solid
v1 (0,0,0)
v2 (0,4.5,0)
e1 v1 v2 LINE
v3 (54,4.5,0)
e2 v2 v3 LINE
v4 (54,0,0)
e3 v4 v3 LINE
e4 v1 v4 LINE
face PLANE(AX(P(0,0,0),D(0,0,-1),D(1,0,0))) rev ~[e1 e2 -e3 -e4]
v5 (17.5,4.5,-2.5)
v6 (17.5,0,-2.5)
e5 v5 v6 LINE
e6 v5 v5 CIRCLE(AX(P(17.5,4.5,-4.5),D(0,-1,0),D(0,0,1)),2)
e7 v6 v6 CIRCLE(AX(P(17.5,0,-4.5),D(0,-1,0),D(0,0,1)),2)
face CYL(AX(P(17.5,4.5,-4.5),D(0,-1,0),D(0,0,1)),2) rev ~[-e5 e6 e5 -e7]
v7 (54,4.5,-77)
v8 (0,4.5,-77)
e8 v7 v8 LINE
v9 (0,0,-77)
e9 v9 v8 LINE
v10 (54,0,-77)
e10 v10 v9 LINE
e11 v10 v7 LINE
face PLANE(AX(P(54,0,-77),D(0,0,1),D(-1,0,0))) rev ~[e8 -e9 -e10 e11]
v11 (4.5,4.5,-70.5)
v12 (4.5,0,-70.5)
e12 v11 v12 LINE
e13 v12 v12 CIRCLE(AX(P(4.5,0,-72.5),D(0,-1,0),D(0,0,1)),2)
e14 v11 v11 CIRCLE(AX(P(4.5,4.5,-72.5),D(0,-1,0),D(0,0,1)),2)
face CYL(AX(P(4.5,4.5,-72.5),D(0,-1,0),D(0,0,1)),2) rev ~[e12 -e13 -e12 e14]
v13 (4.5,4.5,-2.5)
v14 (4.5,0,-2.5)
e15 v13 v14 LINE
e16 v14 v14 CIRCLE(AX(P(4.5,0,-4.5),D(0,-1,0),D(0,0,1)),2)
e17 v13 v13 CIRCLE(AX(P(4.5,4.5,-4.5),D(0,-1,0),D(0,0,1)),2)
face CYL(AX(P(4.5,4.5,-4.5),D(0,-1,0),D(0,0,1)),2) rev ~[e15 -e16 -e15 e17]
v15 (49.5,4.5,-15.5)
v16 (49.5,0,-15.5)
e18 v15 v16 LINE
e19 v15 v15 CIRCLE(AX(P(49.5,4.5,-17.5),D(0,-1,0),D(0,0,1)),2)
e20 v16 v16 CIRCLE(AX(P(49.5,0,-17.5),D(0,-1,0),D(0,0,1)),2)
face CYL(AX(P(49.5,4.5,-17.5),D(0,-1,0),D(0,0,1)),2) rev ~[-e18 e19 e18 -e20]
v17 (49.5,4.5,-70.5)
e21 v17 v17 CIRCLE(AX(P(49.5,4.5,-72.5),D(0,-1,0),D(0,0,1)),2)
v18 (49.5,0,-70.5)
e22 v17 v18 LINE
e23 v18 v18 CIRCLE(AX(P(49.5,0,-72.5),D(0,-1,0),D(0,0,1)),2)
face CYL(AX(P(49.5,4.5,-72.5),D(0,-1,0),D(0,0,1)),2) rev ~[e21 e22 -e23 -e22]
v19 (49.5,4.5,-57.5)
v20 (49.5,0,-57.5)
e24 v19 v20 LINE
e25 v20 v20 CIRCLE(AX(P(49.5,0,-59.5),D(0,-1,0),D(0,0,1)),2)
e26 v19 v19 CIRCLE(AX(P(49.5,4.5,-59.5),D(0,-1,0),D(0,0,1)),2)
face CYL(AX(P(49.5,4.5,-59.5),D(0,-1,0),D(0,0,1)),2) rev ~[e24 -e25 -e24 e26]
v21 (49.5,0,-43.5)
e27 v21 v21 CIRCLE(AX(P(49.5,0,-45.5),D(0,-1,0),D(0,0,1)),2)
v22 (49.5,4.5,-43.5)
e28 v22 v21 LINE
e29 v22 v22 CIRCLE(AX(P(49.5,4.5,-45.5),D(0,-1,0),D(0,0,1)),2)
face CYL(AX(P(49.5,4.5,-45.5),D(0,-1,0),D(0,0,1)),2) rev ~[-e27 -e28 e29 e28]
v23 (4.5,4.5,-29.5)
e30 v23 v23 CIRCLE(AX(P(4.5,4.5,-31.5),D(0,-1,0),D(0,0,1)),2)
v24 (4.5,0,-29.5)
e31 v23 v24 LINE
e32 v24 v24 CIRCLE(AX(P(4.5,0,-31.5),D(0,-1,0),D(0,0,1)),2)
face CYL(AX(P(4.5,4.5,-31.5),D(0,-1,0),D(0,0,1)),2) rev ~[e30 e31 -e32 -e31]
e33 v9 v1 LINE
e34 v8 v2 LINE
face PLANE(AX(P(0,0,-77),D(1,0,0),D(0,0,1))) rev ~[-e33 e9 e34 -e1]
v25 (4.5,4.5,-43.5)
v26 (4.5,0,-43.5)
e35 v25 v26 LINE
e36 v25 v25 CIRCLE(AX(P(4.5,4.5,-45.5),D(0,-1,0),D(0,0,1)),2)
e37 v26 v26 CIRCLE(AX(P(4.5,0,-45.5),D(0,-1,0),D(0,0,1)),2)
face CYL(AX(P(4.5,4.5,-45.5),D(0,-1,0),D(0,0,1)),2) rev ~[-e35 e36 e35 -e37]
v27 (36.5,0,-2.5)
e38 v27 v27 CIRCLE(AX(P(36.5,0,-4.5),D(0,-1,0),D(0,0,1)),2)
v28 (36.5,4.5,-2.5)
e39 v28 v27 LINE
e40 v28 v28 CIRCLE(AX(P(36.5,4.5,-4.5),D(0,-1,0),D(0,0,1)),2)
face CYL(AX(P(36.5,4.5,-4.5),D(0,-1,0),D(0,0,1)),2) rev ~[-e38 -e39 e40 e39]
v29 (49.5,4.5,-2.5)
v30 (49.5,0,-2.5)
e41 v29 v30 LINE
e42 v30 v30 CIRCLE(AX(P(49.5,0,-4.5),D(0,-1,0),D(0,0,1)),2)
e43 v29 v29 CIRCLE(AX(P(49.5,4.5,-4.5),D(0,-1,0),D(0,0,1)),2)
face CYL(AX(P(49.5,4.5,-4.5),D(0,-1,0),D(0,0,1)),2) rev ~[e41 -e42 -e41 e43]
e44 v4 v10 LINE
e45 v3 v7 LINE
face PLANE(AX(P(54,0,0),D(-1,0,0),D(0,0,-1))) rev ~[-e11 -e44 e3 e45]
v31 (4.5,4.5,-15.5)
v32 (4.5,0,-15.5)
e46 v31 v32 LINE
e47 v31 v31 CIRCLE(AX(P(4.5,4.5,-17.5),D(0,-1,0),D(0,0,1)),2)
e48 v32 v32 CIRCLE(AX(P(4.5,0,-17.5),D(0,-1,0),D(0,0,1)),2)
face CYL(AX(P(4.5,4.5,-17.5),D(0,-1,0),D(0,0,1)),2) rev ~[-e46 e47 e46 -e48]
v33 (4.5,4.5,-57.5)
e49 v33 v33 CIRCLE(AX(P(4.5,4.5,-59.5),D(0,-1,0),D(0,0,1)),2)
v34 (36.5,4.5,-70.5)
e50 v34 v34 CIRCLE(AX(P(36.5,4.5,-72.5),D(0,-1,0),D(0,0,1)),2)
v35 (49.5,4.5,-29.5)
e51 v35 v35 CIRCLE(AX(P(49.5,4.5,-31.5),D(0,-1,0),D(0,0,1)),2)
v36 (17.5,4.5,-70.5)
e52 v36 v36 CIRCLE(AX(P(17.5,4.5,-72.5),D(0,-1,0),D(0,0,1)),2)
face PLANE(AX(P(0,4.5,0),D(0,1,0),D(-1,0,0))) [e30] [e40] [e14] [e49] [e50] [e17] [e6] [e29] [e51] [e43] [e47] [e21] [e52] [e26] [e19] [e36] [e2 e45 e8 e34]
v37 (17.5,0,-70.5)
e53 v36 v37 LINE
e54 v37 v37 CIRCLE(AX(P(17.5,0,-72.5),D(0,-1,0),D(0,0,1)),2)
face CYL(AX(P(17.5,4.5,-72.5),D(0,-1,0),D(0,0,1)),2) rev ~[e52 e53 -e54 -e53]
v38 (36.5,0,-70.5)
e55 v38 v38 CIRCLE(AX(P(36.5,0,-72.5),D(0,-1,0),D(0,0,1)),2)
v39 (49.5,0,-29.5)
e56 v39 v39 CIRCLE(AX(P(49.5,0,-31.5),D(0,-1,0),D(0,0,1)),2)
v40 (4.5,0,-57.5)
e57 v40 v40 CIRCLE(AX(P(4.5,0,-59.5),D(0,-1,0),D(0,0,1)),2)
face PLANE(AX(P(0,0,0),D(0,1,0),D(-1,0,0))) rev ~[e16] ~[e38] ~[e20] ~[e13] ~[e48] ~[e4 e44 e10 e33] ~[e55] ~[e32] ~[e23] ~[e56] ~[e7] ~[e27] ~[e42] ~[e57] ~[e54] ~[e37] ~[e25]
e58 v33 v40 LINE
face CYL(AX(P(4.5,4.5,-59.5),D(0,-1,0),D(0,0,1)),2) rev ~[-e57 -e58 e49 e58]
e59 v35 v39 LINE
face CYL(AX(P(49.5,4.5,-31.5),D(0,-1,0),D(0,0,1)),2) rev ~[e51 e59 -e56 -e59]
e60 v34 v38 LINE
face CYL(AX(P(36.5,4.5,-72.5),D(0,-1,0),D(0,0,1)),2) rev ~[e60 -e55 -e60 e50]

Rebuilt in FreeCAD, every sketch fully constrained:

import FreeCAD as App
import Part
import Sketcher

V = App.Vector


def add_polygon(sketch, points):
    """Adds a closed chain of lines whose ends are joined by coincident constraints."""
    first, n = sketch.GeometryCount, len(points)
    for a, b in zip(points, points[1:] + points[:1]):
        sketch.addGeometry(Part.LineSegment(App.Vector(*a, 0), App.Vector(*b, 0)), False)
    for i in range(n):
        sketch.addConstraint(Sketcher.Constraint("Coincident", first + i, 2, first + (i + 1) % n, 1))

doc = App.newDocument("Part")
body = doc.addObject("PartDesign::Body", "Body")

sketch1 = body.newObject("Sketcher::SketchObject", "Sketch")
sketch1.AttachmentSupport = (doc.getObject("XZ_Plane"), [""])
sketch1.MapMode = "FlatFace"
add_polygon(sketch1, [(0, -77), (0, 0), (54, 0), (54, -77)])
sketch1.addConstraint([
    Sketcher.Constraint("Vertical", 0),
    Sketcher.Constraint("Horizontal", 1),
    Sketcher.Constraint("Vertical", 2),
    Sketcher.Constraint("Horizontal", 3),
    Sketcher.Constraint("Coincident", 0, 2, -1, 1),
    Sketcher.Constraint("DistanceX", 1, 1, 1, 2, 54.0),
    Sketcher.Constraint("DistanceY", 0, 1, 0, 2, 77.0),
])
pad1 = body.newObject("PartDesign::Pad", "Pad")
pad1.Profile = sketch1
pad1.Length = 4.5
pad1.Reversed = True

sketch2 = body.newObject("Sketcher::SketchObject", "Sketch001")
sketch2.AttachmentSupport = (doc.getObject("XZ_Plane"), [""])
sketch2.MapMode = "FlatFace"
sketch2.AttachmentOffset = App.Placement(V(0, 0, -4.5), App.Rotation())
sketch2.addGeometry([
    Part.Circle(V(4.5, -4.5, 0), V(0, 0, 1), 2),
    Part.Circle(V(17.5, -4.5, 0), V(0, 0, 1), 2),
    Part.Circle(V(4.5, -17.5, 0), V(0, 0, 1), 2),
    Part.Circle(V(36.5, -4.5, 0), V(0, 0, 1), 2),
    Part.Circle(V(4.5, -31.5, 0), V(0, 0, 1), 2),
    Part.Circle(V(49.5, -4.5, 0), V(0, 0, 1), 2),
    Part.Circle(V(49.5, -17.5, 0), V(0, 0, 1), 2),
    Part.Circle(V(4.5, -45.5, 0), V(0, 0, 1), 2),
    Part.Circle(V(4.5, -59.5, 0), V(0, 0, 1), 2),
    Part.Circle(V(4.5, -72.5, 0), V(0, 0, 1), 2),
    Part.Circle(V(17.5, -72.5, 0), V(0, 0, 1), 2),
    Part.Circle(V(36.5, -72.5, 0), V(0, 0, 1), 2),
    Part.Circle(V(49.5, -72.5, 0), V(0, 0, 1), 2),
    Part.Circle(V(49.5, -59.5, 0), V(0, 0, 1), 2),
    Part.Circle(V(49.5, -45.5, 0), V(0, 0, 1), 2),
    Part.Circle(V(49.5, -31.5, 0), V(0, 0, 1), 2),
], False)
sketch2.addConstraint([
    Sketcher.Constraint("Equal", 0, 1),
    Sketcher.Constraint("Equal", 1, 2),
    Sketcher.Constraint("Equal", 2, 3),
    Sketcher.Constraint("Equal", 3, 4),
    Sketcher.Constraint("Equal", 4, 5),
    Sketcher.Constraint("Equal", 5, 6),
    Sketcher.Constraint("Equal", 6, 7),
    Sketcher.Constraint("Equal", 7, 8),
    Sketcher.Constraint("Equal", 8, 9),
    Sketcher.Constraint("Equal", 9, 10),
    Sketcher.Constraint("Equal", 10, 11),
    Sketcher.Constraint("Equal", 11, 12),
    Sketcher.Constraint("Equal", 12, 13),
    Sketcher.Constraint("Equal", 13, 14),
    Sketcher.Constraint("Equal", 14, 15),
    Sketcher.Constraint("Horizontal", 0, 3, 1, 3),
    Sketcher.Constraint("Horizontal", 1, 3, 3, 3),
    Sketcher.Constraint("Horizontal", 3, 3, 5, 3),
    Sketcher.Constraint("Horizontal", 2, 3, 6, 3),
    Sketcher.Constraint("Horizontal", 9, 3, 10, 3),
    Sketcher.Constraint("Horizontal", 10, 3, 11, 3),
    Sketcher.Constraint("Horizontal", 11, 3, 12, 3),
    Sketcher.Constraint("Horizontal", 8, 3, 13, 3),
    Sketcher.Constraint("Horizontal", 7, 3, 14, 3),
    Sketcher.Constraint("Horizontal", 4, 3, 15, 3),
    Sketcher.Constraint("Vertical", 0, 3, 2, 3),
    Sketcher.Constraint("Vertical", 2, 3, 4, 3),
    Sketcher.Constraint("Vertical", 5, 3, 6, 3),
    Sketcher.Constraint("Vertical", 4, 3, 7, 3),
    Sketcher.Constraint("Vertical", 7, 3, 8, 3),
    Sketcher.Constraint("Vertical", 8, 3, 9, 3),
    Sketcher.Constraint("Vertical", 1, 3, 10, 3),
    Sketcher.Constraint("Vertical", 3, 3, 11, 3),
    Sketcher.Constraint("Vertical", 6, 3, 12, 3),
    Sketcher.Constraint("Vertical", 12, 3, 13, 3),
    Sketcher.Constraint("Vertical", 13, 3, 14, 3),
    Sketcher.Constraint("Vertical", 14, 3, 15, 3),
    Sketcher.Constraint("Diameter", 0, 4.0),
    Sketcher.Constraint("DistanceX", 0, 3, 1, 3, 13.0),
    Sketcher.Constraint("DistanceY", 2, 3, 0, 3, 13.0),
    Sketcher.Constraint("DistanceX", 1, 3, 3, 3, 19.0),
    Sketcher.Constraint("DistanceY", 4, 3, 2, 3, 14.0),
    Sketcher.Constraint("DistanceX", 3, 3, 5, 3, 13.0),
    Sketcher.Constraint("DistanceY", 7, 3, 4, 3, 14.0),
    Sketcher.Constraint("DistanceY", 8, 3, 7, 3, 14.0),
    Sketcher.Constraint("DistanceY", 9, 3, 8, 3, 13.0),
    Sketcher.Constraint("DistanceX", -1, 1, 0, 3, 4.5),
    Sketcher.Constraint("DistanceY", 0, 3, -1, 1, 4.5),
])
doc.recompute()
hole = body.newObject("PartDesign::Hole", "Hole")
hole.Profile = sketch2
hole.ThreadType = "None"
hole.Diameter = 4
hole.DepthType = "Dimension"
hole.Depth = 10
hole.DrillPoint = "Angled"
hole.DrillPointAngle = 118
hole.Reversed = True

doc.recompute()
